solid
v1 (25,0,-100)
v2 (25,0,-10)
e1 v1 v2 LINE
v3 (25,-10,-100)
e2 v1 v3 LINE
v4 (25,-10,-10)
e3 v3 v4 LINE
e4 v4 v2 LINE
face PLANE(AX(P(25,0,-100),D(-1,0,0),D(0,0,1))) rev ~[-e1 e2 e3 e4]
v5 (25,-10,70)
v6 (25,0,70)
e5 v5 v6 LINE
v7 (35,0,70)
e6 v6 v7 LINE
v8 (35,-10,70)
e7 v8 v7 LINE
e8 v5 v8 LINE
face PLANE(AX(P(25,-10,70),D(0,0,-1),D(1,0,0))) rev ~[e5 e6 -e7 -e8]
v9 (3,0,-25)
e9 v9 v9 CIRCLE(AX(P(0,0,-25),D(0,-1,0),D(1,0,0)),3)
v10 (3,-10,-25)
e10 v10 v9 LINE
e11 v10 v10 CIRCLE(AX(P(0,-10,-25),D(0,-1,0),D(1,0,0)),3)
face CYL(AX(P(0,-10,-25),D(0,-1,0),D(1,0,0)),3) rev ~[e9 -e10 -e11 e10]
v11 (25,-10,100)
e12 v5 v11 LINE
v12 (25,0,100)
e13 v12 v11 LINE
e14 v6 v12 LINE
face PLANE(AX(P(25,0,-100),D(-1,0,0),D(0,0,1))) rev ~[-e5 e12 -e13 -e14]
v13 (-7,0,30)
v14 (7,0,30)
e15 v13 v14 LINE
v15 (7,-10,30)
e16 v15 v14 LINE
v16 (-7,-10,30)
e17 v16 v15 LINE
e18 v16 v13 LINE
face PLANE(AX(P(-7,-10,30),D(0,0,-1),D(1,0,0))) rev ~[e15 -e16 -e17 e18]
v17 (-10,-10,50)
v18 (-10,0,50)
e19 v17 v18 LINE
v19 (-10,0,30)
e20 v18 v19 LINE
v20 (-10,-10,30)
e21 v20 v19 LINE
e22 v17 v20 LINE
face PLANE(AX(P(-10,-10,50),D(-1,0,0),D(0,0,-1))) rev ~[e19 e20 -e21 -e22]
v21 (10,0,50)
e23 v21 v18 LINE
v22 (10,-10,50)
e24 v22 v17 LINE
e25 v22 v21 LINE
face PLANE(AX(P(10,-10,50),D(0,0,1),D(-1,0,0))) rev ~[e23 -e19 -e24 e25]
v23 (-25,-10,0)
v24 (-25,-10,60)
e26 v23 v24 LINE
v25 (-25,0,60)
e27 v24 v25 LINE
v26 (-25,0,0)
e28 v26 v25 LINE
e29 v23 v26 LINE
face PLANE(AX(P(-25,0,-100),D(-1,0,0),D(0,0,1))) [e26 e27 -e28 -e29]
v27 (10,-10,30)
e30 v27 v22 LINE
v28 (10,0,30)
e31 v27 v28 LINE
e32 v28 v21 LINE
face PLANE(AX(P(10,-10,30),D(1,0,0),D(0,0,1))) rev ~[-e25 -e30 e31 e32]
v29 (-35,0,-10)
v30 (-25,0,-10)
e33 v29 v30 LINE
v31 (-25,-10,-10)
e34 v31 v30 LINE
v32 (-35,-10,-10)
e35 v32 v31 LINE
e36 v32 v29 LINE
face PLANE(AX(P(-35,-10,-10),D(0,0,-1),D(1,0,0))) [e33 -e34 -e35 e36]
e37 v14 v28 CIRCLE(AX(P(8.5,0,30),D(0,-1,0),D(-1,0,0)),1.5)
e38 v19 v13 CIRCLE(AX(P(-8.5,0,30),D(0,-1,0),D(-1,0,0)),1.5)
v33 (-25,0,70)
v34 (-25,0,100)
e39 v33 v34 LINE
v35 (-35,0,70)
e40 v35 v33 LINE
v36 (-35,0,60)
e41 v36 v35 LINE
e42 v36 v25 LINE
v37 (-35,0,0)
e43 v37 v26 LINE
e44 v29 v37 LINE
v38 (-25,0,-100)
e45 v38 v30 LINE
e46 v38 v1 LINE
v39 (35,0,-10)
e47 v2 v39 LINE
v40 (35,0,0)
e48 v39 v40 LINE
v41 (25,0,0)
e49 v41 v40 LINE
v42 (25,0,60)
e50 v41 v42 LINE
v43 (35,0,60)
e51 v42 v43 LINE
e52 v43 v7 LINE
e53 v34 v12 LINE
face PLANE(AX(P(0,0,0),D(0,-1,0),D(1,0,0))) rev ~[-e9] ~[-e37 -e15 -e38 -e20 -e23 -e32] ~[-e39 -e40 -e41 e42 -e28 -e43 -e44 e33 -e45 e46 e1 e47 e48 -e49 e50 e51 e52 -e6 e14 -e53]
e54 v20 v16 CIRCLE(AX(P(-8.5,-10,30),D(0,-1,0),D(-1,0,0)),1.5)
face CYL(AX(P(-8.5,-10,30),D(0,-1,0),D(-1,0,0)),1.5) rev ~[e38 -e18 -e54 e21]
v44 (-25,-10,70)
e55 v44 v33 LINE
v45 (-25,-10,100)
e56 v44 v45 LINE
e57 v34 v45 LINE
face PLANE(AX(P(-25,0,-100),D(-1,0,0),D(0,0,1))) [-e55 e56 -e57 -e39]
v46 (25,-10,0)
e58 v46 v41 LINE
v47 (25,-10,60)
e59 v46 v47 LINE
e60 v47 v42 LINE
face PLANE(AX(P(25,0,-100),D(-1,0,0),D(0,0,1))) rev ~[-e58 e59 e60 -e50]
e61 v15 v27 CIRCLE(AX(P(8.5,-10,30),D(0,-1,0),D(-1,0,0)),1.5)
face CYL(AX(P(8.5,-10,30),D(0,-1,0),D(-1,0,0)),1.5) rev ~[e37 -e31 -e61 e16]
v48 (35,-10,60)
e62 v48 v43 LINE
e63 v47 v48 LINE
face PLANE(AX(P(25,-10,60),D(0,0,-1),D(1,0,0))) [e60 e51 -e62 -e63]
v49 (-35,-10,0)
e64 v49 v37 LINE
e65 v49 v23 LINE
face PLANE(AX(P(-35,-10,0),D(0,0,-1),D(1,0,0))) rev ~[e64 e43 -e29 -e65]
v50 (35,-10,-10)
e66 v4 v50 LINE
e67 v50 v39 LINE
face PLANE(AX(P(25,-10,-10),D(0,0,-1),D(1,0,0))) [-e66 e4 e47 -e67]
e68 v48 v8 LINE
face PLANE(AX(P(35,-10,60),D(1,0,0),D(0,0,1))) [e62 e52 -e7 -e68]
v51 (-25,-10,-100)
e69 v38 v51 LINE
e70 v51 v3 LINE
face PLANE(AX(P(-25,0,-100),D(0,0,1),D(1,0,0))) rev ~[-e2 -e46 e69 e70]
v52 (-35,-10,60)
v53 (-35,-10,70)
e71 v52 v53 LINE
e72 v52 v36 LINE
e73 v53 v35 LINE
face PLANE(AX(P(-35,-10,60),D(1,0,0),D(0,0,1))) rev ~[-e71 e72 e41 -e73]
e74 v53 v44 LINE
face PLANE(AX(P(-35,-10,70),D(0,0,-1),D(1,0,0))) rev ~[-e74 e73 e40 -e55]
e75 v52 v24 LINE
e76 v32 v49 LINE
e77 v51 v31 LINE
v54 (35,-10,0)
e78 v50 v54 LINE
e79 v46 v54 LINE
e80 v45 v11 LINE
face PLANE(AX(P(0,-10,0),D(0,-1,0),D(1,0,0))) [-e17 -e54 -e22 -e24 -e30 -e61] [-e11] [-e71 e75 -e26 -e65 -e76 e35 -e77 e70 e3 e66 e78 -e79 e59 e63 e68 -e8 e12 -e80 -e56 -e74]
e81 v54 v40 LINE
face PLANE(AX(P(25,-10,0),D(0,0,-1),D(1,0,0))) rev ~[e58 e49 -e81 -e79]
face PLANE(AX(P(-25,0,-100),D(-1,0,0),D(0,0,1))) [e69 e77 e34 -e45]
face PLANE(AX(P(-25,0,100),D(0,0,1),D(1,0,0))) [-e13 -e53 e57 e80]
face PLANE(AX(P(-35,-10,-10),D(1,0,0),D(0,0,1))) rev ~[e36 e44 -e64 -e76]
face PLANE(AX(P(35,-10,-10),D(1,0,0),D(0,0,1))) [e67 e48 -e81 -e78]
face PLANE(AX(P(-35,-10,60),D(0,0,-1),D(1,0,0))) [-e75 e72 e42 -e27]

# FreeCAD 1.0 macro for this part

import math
import FreeCAD as App
import Part
import Sketcher
from FreeCAD import Vector
Q = App.Units.Quantity

doc = App.newDocument("Part")
params = doc.addObject("Spreadsheet::Sheet", "Params")
for row, (alias, value) in enumerate([
    ("sketch1_width", "50 mm"),
    ("sketch1_height", "200 mm"),
    ("pad1_length", "10 mm"),
    ("sketch2_diameter", "6 mm"),
    ("pocket1_length", "25 mm"),
    ("sketch3_radius", "1.5 mm"),
    ("sketch3_width", "20 mm"),
    ("pocket2_length", "25 mm"),
    ("sketch4_width", "10 mm"),
    ("pad2_length", "10 mm"),
], start=1):
    params.set(f"A{row}", alias)
    params.set(f"B{row}", "=" + value)
    params.setAlias(f"B{row}", alias)

body = doc.addObject("PartDesign::Body", "Body")

sketch1 = doc.addObject("Sketcher::SketchObject", "Sketch")
body.addObject(sketch1)
sketch1.AttachmentSupport = (doc.XZ_Plane, [""])
sketch1.MapMode = "FlatFace"
sketch1.addGeometry([
    Part.LineSegment(Vector(-25, 100, 0), Vector(-25, -100, 0)),
    Part.LineSegment(Vector(-25, -100, 0), Vector(25, -100, 0)),
    Part.LineSegment(Vector(25, -100, 0), Vector(25, 100, 0)),
    Part.LineSegment(Vector(25, 100, 0), Vector(-25, 100, 0)),
], False)
sketch1.addConstraint([
    Sketcher.Constraint("Coincident", 0, 2, 1, 1),
    Sketcher.Constraint("Coincident", 1, 2, 2, 1),
    Sketcher.Constraint("Coincident", 2, 2, 3, 1),
    Sketcher.Constraint("Coincident", 3, 2, 0, 1),
    Sketcher.Constraint("Vertical", 0),
    Sketcher.Constraint("Horizontal", 1),
    Sketcher.Constraint("Vertical", 2),
    Sketcher.Constraint("Horizontal", 3),
    Sketcher.Constraint("Symmetric", 0, 2, 2, 2, -1, 1),
    Sketcher.Constraint("DistanceX", 1, 1, 1, 2, Q("50 mm")),
    Sketcher.Constraint("DistanceY", 0, 2, 0, 1, Q("200 mm")),
])
sketch1.setExpression("Constraints[9]", "Params.sketch1_width")
sketch1.setExpression("Constraints[10]", "Params.sketch1_height")
pad1 = doc.addObject("PartDesign::Pad", "Pad")
body.addObject(pad1)
pad1.Profile = sketch1
pad1.setExpression("Length", "Params.pad1_length")

sketch2 = doc.addObject("Sketcher::SketchObject", "Sketch001")
body.addObject(sketch2)
sketch2.AttachmentSupport = (doc.XZ_Plane, [""])
sketch2.MapMode = "FlatFace"
sketch2.AttachmentOffset = App.Placement(Vector(0, 0, 10), App.Rotation())
sketch2.addGeometry(Part.Circle(Vector(0, -25, 0), Vector(0, 0, 1), 3), False)
sketch2.addConstraint([
    Sketcher.Constraint("PointOnObject", 0, 3, -2),
    Sketcher.Constraint("Diameter", 0, Q("6 mm")),
    Sketcher.Constraint("DistanceY", 0, 3, -1, 1, Q("25 mm")),
])
sketch2.setExpression("Constraints[1]", "Params.sketch2_diameter")
pocket1 = doc.addObject("PartDesign::Pocket", "Pocket")
body.addObject(pocket1)
pocket1.Profile = sketch2
pocket1.setExpression("Length", "Params.pocket1_length")

sketch3 = doc.addObject("Sketcher::SketchObject", "Sketch002")
body.addObject(sketch3)
sketch3.AttachmentSupport = (doc.XZ_Plane, [""])
sketch3.MapMode = "FlatFace"
sketch3.AttachmentOffset = App.Placement(Vector(0, 0, 10), App.Rotation())
sketch3.addGeometry([
    Part.LineSegment(Vector(10, 50, 0), Vector(-10, 50, 0)),
    Part.LineSegment(Vector(-10, 50, 0), Vector(-10, 30, 0)),
    Part.ArcOfCircle(Part.Circle(Vector(-8.5, 30, 0), Vector(0, 0, 1), 1.5), math.radians(180), math.radians(360)),
    Part.LineSegment(Vector(-7, 30, 0), Vector(7, 30, 0)),
    Part.ArcOfCircle(Part.Circle(Vector(8.5, 30, 0), Vector(0, 0, 1), 1.5), math.radians(180), math.radians(360)),
    Part.LineSegment(Vector(10, 30, 0), Vector(10, 50, 0)),
], False)
sketch3.addConstraint([
    Sketcher.Constraint("Coincident", 0, 2, 1, 1),
    Sketcher.Constraint("Tangent", 1, 2, 2, 1),
    Sketcher.Constraint("Coincident", 2, 2, 3, 1),
    Sketcher.Constraint("Coincident", 3, 2, 4, 1),
    Sketcher.Constraint("Tangent", 4, 2, 5, 1),
    Sketcher.Constraint("Coincident", 5, 2, 0, 1),
    Sketcher.Constraint("Horizontal", 0),
    Sketcher.Constraint("Vertical", 1),
    Sketcher.Constraint("Horizontal", 3),
    Sketcher.Constraint("Vertical", 5),
    Sketcher.Constraint("Equal", 2, 4),
    Sketcher.Constraint("Symmetric", 2, 3, 4, 3, -2),
    Sketcher.Constraint("Horizontal", 1, 2, 2, 2),
    Sketcher.Constraint("Equal", 0, 1),
    Sketcher.Constraint("Radius", 2, Q("1.5 mm")),
    Sketcher.Constraint("DistanceX", 0, 2, 0, 1, Q("20 mm")),
    Sketcher.Constraint("DistanceY", -1, 1, 2, 3, Q("30 mm")),
])
sketch3.setExpression("Constraints[14]", "Params.sketch3_radius")
sketch3.setExpression("Constraints[15]", "Params.sketch3_width")
pocket2 = doc.addObject("PartDesign::Pocket", "Pocket001")
body.addObject(pocket2)
pocket2.Profile = sketch3
pocket2.setExpression("Length", "Params.pocket2_length")

sketch4 = doc.addObject("Sketcher::SketchObject", "Sketch003")
body.addObject(sketch4)
sketch4.AttachmentSupport = (doc.XZ_Plane, [""])
sketch4.MapMode = "FlatFace"
sketch4.AttachmentOffset = App.Placement(Vector(0, 0, 10), App.Rotation())
sketch4.addGeometry([
    Part.LineSegment(Vector(-35, 70, 0), Vector(-35, 60, 0)),
    Part.LineSegment(Vector(-35, 60, 0), Vector(-25, 60, 0)),
    Part.LineSegment(Vector(-25, 60, 0), Vector(-25, 70, 0)),
    Part.LineSegment(Vector(-25, 70, 0), Vector(-35, 70, 0)),
    Part.LineSegment(Vector(25, 70, 0), Vector(25, 60, 0)),
    Part.LineSegment(Vector(25, 60, 0), Vector(35, 60, 0)),
    Part.LineSegment(Vector(35, 60, 0), Vector(35, 70, 0)),
    Part.LineSegment(Vector(35, 70, 0), Vector(25, 70, 0)),
    Part.LineSegment(Vector(-35, 0, 0), Vector(-35, -10, 0)),
    Part.LineSegment(Vector(-35, -10, 0), Vector(-25, -10, 0)),
    Part.LineSegment(Vector(-25, -10, 0), Vector(-25, 0, 0)),
    Part.LineSegment(Vector(-25, 0, 0), Vector(-35, 0, 0)),
    Part.LineSegment(Vector(25, 0, 0), Vector(25, -10, 0)),
    Part.LineSegment(Vector(25, -10, 0), Vector(35, -10, 0)),
    Part.LineSegment(Vector(35, -10, 0), Vector(35, 0, 0)),
    Part.LineSegment(Vector(35, 0, 0), Vector(25, 0, 0)),
], False)
sketch4.addConstraint([
    Sketcher.Constraint("Coincident", 0, 2, 1, 1),
    Sketcher.Constraint("Coincident", 1, 2, 2, 1),
    Sketcher.Constraint("Coincident", 2, 2, 3, 1),
    Sketcher.Constraint("Coincident", 3, 2, 0, 1),
    Sketcher.Constraint("Coincident", 4, 2, 5, 1),
    Sketcher.Constraint("Coincident", 5, 2, 6, 1),
    Sketcher.Constraint("Coincident", 6, 2, 7, 1),
    Sketcher.Constraint("Coincident", 7, 2, 4, 1),
    Sketcher.Constraint("Coincident", 8, 2, 9, 1),
    Sketcher.Constraint("Coincident", 9, 2, 10, 1),
    Sketcher.Constraint("Coincident", 10, 2, 11, 1),
    Sketcher.Constraint("Coincident", 11, 2, 8, 1),
    Sketcher.Constraint("Coincident", 12, 2, 13, 1),
    Sketcher.Constraint("Coincident", 13, 2, 14, 1),
    Sketcher.Constraint("Coincident", 14, 2, 15, 1),
    Sketcher.Constraint("Coincident", 15, 2, 12, 1),
    Sketcher.Constraint("Vertical", 0),
    Sketcher.Constraint("Horizontal", 1),
    Sketcher.Constraint("Vertical", 2),
    Sketcher.Constraint("Horizontal", 3),
    Sketcher.Constraint("Vertical", 4),
    Sketcher.Constraint("Horizontal", 5),
    Sketcher.Constraint("Vertical", 6),
    Sketcher.Constraint("Horizontal", 7),
    Sketcher.Constraint("Vertical", 8),
    Sketcher.Constraint("Horizontal", 9),
    Sketcher.Constraint("Vertical", 10),
    Sketcher.Constraint("Horizontal", 11),
    Sketcher.Constraint("Vertical", 12),
    Sketcher.Constraint("Horizontal", 13),
    Sketcher.Constraint("Vertical", 14),
    Sketcher.Constraint("Horizontal", 15),
    Sketcher.Constraint("Symmetric", 11, 2, 14, 2, -1, 1),
    Sketcher.Constraint("Symmetric", 1, 2, 4, 2, -2),
    Sketcher.Constraint("Symmetric", 3, 2, 6, 2, -2),
    Sketcher.Constraint("Symmetric", 9, 2, 12, 2, -2),
    Sketcher.Constraint("PointOnObject", 10, 2, -1),
    Sketcher.Constraint("Vertical", 3, 2, 8, 2),
    Sketcher.Constraint("Vertical", 2, 2, 9, 2),
    Sketcher.Constraint("Equal", 15, 0),
    Sketcher.Constraint("Equal", 6, 8),
    Sketcher.Constraint("DistanceX", 1, 1, 1, 2, Q("10 mm")),
    Sketcher.Constraint("DistanceX", 0, 2, -1, 1, Q("35 mm")),
    Sketcher.Constraint("DistanceY", -1, 1, 0, 2, Q("60 mm")),
])
sketch4.setExpression("Constraints[41]", "Params.sketch4_width")
pad2 = doc.addObject("PartDesign::Pad", "Pad001")
body.addObject(pad2)
pad2.Profile = sketch4
pad2.setExpression("Length", "Params.pad2_length")
pad2.Reversed = True

doc.recompute()
